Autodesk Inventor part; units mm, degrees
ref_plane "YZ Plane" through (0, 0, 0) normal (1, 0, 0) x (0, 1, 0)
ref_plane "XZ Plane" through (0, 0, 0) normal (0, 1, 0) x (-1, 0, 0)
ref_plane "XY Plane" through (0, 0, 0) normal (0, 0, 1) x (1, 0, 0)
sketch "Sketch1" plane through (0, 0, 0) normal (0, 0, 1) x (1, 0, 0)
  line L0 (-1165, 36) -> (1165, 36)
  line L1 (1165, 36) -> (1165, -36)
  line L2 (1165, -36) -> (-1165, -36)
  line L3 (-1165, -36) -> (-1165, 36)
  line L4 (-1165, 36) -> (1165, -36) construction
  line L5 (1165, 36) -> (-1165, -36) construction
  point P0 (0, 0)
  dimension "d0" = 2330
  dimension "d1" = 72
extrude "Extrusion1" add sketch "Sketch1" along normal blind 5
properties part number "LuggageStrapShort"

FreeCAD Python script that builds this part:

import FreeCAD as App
import Part
import Sketcher
Q = App.Units.Quantity

doc = App.newDocument("Part")
body = doc.addObject("PartDesign::Body", "Body")

# Sketch on XY plane
sketch1 = doc.addObject("Sketcher::SketchObject", "Sketch")
body.addObject(sketch1)
sketch1.AttachmentSupport = (doc.XY_Plane, [""])
sketch1.MapMode = "FlatFace"
sketch1.addGeometry(Part.LineSegment(App.Vector(1165, 36, 0), App.Vector(-1165, 36, 0)), False)
sketch1.addGeometry(Part.LineSegment(App.Vector(-1165, 36, 0), App.Vector(-1165, -36, 0)), False)
sketch1.addGeometry(Part.LineSegment(App.Vector(-1165, -36, 0), App.Vector(1165, -36, 0)), False)
sketch1.addGeometry(Part.LineSegment(App.Vector(1165, -36, 0), App.Vector(1165, 36, 0)), False)
sketch1.addConstraint(Sketcher.Constraint("Coincident", 0, 2, 1, 1))
sketch1.addConstraint(Sketcher.Constraint("Coincident", 1, 2, 2, 1))
sketch1.addConstraint(Sketcher.Constraint("Coincident", 2, 2, 3, 1))
sketch1.addConstraint(Sketcher.Constraint("Coincident", 3, 2, 0, 1))
sketch1.addConstraint(Sketcher.Constraint("Horizontal", 0))
sketch1.addConstraint(Sketcher.Constraint("Vertical", 1))
sketch1.addConstraint(Sketcher.Constraint("Horizontal", 2))
sketch1.addConstraint(Sketcher.Constraint("Vertical", 3))
sketch1.addConstraint(Sketcher.Constraint("Symmetric", 0, 2, 2, 2, -1, 1))
sketch1.addConstraint(Sketcher.Constraint("DistanceX", 0, 2, 0, 1, Q("2330 mm")))
sketch1.addConstraint(Sketcher.Constraint("DistanceY", 1, 2, 1, 1, Q("72 mm")))
pad1 = doc.addObject("PartDesign::Pad", "Pad")
body.addObject(pad1)
pad1.Profile = sketch1
pad1.Length = 5

doc.recompute()
